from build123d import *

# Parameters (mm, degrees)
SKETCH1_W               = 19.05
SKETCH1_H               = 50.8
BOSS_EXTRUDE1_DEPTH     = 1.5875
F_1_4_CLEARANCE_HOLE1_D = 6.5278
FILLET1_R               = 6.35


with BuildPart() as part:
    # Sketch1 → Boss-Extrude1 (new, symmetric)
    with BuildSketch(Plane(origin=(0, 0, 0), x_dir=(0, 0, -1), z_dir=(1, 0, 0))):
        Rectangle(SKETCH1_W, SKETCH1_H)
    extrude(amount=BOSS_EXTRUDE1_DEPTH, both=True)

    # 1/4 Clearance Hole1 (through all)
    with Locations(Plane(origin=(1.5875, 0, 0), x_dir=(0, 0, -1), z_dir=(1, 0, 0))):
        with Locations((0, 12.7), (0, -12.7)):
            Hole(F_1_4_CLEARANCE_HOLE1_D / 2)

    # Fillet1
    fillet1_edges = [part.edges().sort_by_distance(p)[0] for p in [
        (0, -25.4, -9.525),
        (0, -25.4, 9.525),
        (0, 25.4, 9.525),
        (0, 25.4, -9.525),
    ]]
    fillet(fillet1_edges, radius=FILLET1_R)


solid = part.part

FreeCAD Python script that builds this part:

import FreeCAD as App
import Part
import Sketcher
from FreeCAD import Vector
Q = App.Units.Quantity


def edges_at(feature, points):
    """Names of the edges that pass closest to the given points."""
    edges = feature.Shape.Edges
    near = lambda p: min(range(len(edges)), key=lambda i: edges[i].distToShape(Part.Vertex(*p))[0])
    return sorted({f"Edge{near(p) + 1}" for p in points})

doc = App.newDocument("Part")
body = doc.addObject("PartDesign::Body", "Body")

# Sketch on YZ plane
sketch1 = body.newObject("Sketcher::SketchObject", "Sketch")
sketch1.AttachmentSupport = (doc.getObject("YZ_Plane"), [""])
sketch1.MapMode = "FlatFace"
sketch1.addGeometry(Part.LineSegment(Vector(25.4, 9.525, 0), Vector(-25.4, 9.525, 0)), False)
sketch1.addGeometry(Part.LineSegment(Vector(-25.4, 9.525, 0), Vector(-25.4, -9.525, 0)), False)
sketch1.addGeometry(Part.LineSegment(Vector(-25.4, -9.525, 0), Vector(25.4, -9.525, 0)), False)
sketch1.addGeometry(Part.LineSegment(Vector(25.4, -9.525, 0), Vector(25.4, 9.525, 0)), False)
sketch1.addConstraint(Sketcher.Constraint("Coincident", 0, 2, 1, 1))
sketch1.addConstraint(Sketcher.Constraint("Coincident", 1, 2, 2, 1))
sketch1.addConstraint(Sketcher.Constraint("Coincident", 2, 2, 3, 1))
sketch1.addConstraint(Sketcher.Constraint("Coincident", 3, 2, 0, 1))
sketch1.addConstraint(Sketcher.Constraint("Horizontal", 0))
sketch1.addConstraint(Sketcher.Constraint("Vertical", 1))
sketch1.addConstraint(Sketcher.Constraint("Horizontal", 2))
sketch1.addConstraint(Sketcher.Constraint("Vertical", 3))
sketch1.addConstraint(Sketcher.Constraint("Symmetric", 0, 2, 2, 2, -1, 1))
sketch1.addConstraint(Sketcher.Constraint("DistanceX", 0, 2, 0, 1, Q("2 in")))
sketch1.addConstraint(Sketcher.Constraint("DistanceY", 1, 2, 1, 1, Q("0.75 in")))
pad1 = body.newObject("PartDesign::Pad", "Pad")
pad1.Profile = sketch1
pad1.Length = Q("0.125 in")
pad1.Midplane = True

# Sketch on YZ plane
sketch2 = body.newObject("Sketcher::SketchObject", "Sketch001")
sketch2.AttachmentSupport = (doc.getObject("YZ_Plane"), [""])
sketch2.MapMode = "FlatFace"
sketch2.AttachmentOffset = App.Placement(Vector(0, 0, 0.0625 * 25.4), App.Rotation())
sketch2.addGeometry(Part.Circle(Vector(12.7, 0, 0), Vector(0, 0, 1), 3.2639), False)
sketch2.addGeometry(Part.Circle(Vector(-12.7, 0, 0), Vector(0, 0, 1), 3.2639), False)
sketch2.addConstraint(Sketcher.Constraint("Equal", 0, 1))
sketch2.addConstraint(Sketcher.Constraint("Symmetric", 0, 3, 1, 3, -1, 1))
sketch2.addConstraint(Sketcher.Constraint("PointOnObject", 0, 3, -1))
sketch2.addConstraint(Sketcher.Constraint("Diameter", 0, Q("0.257 in")))
sketch2.addConstraint(Sketcher.Constraint("DistanceX", 1, 3, 0, 3, Q("1 in")))
doc.recompute()
hole = body.newObject("PartDesign::Hole", "Hole")
hole.Profile = sketch2
hole.ThreadType = "None"
hole.Diameter = Q("0.257 in")
hole.DepthType = "ThroughAll"
doc.recompute()

fillet = body.newObject("PartDesign::Fillet", "Fillet")
fillet.Base = (hole, edges_at(hole, [
    (0, -25.4, -9.525),
    (0, -25.4, 9.525),
    (0, 25.4, 9.525),
    (0, 25.4, -9.525),
]))
fillet.Radius = Q("0.25 in")

doc.recompute()
